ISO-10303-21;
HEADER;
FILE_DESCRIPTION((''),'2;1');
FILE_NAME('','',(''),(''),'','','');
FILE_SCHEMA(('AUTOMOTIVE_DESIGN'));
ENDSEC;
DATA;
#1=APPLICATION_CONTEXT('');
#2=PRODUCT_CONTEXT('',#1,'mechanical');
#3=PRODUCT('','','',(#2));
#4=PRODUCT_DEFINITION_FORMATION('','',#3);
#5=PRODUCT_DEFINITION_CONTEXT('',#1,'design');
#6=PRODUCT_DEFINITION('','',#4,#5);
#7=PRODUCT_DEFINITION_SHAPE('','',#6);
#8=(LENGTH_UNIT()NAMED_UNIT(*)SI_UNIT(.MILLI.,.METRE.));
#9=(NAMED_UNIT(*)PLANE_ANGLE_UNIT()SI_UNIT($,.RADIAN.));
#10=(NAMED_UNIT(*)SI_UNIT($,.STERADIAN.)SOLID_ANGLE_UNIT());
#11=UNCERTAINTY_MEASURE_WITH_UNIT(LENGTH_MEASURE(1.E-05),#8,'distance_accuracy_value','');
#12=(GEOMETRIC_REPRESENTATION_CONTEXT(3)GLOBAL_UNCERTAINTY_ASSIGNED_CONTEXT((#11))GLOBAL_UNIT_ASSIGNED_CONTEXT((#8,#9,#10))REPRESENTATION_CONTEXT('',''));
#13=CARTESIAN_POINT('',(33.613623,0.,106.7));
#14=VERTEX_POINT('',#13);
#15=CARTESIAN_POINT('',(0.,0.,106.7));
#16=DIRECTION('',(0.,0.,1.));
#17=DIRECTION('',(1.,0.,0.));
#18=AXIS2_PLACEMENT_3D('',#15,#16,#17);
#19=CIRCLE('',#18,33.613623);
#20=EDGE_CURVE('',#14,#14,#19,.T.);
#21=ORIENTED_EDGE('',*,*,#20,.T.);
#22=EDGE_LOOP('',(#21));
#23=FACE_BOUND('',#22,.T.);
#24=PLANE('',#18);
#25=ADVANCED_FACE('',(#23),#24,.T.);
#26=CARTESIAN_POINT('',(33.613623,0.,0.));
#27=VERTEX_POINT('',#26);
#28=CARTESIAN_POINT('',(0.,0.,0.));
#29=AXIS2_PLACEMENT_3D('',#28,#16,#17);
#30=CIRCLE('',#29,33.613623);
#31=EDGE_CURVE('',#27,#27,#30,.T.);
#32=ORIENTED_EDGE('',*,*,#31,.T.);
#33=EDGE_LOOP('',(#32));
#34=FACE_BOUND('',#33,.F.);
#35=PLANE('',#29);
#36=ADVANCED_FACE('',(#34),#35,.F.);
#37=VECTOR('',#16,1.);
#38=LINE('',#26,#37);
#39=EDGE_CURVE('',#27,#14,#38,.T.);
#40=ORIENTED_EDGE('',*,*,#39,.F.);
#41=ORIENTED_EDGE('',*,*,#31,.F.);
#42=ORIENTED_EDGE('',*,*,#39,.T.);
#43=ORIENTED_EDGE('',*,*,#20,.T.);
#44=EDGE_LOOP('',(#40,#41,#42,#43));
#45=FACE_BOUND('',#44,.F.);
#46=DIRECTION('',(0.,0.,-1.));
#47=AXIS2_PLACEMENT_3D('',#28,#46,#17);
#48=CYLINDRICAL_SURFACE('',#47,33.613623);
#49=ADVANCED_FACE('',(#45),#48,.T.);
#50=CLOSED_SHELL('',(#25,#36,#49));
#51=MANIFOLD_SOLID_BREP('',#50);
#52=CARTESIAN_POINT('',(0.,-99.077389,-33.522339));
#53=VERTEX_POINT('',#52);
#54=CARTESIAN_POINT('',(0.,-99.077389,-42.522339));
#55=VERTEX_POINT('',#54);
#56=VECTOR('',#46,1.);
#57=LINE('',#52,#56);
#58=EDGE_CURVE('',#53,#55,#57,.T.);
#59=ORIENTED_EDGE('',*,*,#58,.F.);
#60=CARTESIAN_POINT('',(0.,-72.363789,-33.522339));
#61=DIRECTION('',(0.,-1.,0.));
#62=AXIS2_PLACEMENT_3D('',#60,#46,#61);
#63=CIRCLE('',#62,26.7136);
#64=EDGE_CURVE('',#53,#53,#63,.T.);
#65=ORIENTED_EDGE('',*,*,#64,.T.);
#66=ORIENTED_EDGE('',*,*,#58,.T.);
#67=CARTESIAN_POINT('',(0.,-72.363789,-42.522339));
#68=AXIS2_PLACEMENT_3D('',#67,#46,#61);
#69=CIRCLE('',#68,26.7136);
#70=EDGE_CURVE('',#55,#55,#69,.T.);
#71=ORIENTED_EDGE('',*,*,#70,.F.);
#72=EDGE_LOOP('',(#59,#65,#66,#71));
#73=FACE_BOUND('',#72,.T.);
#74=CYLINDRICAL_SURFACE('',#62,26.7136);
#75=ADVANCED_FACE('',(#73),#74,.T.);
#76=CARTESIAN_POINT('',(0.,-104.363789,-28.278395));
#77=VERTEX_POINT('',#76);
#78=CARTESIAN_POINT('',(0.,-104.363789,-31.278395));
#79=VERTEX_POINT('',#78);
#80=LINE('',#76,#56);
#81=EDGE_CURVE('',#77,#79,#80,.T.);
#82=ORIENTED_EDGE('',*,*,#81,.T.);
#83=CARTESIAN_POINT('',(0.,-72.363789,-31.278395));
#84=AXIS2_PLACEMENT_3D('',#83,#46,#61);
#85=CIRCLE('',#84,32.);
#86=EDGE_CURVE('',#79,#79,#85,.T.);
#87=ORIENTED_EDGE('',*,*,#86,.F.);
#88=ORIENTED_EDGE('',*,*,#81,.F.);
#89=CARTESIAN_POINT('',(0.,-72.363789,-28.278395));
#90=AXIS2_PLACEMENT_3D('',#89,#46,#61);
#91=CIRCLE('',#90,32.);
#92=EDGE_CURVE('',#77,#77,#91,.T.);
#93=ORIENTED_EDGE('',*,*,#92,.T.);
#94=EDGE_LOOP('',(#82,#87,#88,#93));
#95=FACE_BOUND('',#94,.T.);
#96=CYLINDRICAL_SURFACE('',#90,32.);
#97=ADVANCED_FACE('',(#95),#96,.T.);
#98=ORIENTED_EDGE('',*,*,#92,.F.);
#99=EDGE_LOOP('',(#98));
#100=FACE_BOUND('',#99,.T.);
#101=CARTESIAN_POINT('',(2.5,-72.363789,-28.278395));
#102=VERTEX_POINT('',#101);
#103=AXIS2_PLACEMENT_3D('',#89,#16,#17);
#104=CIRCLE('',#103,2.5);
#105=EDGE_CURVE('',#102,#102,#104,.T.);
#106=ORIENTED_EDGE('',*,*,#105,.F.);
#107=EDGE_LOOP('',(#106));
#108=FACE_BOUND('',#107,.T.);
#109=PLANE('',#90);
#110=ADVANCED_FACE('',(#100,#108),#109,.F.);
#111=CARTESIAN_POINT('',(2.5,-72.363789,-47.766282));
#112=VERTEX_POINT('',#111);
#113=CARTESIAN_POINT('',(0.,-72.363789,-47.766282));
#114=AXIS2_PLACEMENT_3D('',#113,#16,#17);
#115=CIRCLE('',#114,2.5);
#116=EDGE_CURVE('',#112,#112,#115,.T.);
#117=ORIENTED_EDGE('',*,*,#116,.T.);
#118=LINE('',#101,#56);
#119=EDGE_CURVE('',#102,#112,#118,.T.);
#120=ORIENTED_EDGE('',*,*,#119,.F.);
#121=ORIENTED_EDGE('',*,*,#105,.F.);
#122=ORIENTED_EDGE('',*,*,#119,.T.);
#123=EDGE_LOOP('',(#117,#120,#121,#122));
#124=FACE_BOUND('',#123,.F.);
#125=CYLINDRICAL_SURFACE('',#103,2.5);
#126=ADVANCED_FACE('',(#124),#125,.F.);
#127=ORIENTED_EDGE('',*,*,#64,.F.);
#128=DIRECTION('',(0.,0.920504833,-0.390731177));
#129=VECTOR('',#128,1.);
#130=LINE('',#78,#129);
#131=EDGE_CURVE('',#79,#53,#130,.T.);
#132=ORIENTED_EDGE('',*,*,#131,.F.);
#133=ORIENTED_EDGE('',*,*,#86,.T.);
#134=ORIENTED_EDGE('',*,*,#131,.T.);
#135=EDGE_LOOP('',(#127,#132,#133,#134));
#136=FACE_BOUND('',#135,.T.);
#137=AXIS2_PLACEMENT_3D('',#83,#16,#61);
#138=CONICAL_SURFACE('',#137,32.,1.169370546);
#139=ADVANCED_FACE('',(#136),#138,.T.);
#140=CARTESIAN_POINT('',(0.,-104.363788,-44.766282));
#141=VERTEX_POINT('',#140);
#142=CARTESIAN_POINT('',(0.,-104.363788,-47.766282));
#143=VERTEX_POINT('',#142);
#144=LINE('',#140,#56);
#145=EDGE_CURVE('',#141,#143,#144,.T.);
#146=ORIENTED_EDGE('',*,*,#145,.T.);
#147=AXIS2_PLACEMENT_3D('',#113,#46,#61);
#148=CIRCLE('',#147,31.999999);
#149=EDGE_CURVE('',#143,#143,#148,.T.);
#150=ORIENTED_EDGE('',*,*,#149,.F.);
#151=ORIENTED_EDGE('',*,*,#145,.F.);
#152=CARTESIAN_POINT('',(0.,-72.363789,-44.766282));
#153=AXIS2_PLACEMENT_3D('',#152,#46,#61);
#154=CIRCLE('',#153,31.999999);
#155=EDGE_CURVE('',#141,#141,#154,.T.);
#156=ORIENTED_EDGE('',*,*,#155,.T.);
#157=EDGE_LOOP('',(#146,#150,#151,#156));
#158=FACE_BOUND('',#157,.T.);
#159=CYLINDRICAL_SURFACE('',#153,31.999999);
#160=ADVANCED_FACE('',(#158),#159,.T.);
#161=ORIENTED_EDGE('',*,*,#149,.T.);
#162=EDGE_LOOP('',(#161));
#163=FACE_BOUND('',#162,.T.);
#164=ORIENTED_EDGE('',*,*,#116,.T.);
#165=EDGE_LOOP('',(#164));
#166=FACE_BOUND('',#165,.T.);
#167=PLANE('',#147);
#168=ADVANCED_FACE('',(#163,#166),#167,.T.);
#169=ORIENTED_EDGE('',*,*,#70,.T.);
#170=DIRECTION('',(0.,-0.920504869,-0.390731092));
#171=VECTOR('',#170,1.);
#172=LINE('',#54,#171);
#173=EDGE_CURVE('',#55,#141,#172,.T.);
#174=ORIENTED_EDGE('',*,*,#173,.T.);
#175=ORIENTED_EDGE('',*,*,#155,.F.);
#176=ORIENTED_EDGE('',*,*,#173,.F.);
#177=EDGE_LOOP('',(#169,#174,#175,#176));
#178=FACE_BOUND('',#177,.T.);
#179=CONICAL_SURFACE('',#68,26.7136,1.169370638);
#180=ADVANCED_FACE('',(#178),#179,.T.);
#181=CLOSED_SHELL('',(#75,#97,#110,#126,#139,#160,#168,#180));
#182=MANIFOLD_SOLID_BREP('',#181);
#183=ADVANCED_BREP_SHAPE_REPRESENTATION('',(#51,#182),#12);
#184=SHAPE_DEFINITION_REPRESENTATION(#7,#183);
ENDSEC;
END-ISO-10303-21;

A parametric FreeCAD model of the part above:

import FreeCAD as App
import Part
import Sketcher
Q = App.Units.Quantity

doc = App.newDocument("Part")
body = doc.addObject("PartDesign::Body", "Body")

sketch1 = body.newObject("Sketcher::SketchObject", "Sketch")
sketch1.AttachmentSupport = (doc.getObject("XY_Plane"), [""])
sketch1.MapMode = "FlatFace"
sketch1.addGeometry(Part.Circle(App.Vector(0, 0, 0), App.Vector(0, 0, 1), 33.613623), False)
sketch1.addConstraint([
    Sketcher.Constraint("Coincident", 0, 3, -1, 1),
    Sketcher.Constraint("Diameter", 0, Q("67.227246 mm")),
])
pad1 = body.newObject("PartDesign::Pad", "Pad")
pad1.Profile = sketch1
pad1.Length = 106.7
body2 = doc.addObject("PartDesign::Body", "Body001")

sketch2 = body2.newObject("Sketcher::SketchObject", "Sketch001")
sketch2.AttachmentSupport = (doc.getObject("YZ_Plane001"), [""])
sketch2.MapMode = "FlatFace"
sketch2.addGeometry([
    Part.LineSegment(App.Vector(-72.363789, -28.278395, 0), App.Vector(-104.363789, -28.278395, 0)),
    Part.LineSegment(App.Vector(-104.363789, -28.278395, 0), App.Vector(-104.363789, -31.278395, 0)),
    Part.LineSegment(App.Vector(-104.363789, -31.278395, 0), App.Vector(-99.077389, -33.522339, 0)),
    Part.LineSegment(App.Vector(-99.077389, -33.522339, 0), App.Vector(-99.077389, -42.522339, 0)),
    Part.LineSegment(App.Vector(-99.077389, -42.522339, 0), App.Vector(-104.363788, -44.766282, 0)),
    Part.LineSegment(App.Vector(-104.363788, -44.766282, 0), App.Vector(-104.363788, -47.766282, 0)),
    Part.LineSegment(App.Vector(-104.363788, -47.766282, 0), App.Vector(-72.363789, -47.766282, 0)),
    Part.LineSegment(App.Vector(-72.363789, -47.766282, 0), App.Vector(-72.363789, -28.278395, 0)),
], False)
sketch2.addGeometry(Part.LineSegment(App.Vector(-72.363789, -28.278395, 0), App.Vector(-72.363789, -47.766282, 0)), True)
sketch2.addConstraint([
    Sketcher.Constraint("Coincident", 0, 2, 1, 1),
    Sketcher.Constraint("Coincident", 1, 2, 2, 1),
    Sketcher.Constraint("Coincident", 2, 2, 3, 1),
    Sketcher.Constraint("Coincident", 3, 2, 4, 1),
    Sketcher.Constraint("Coincident", 4, 2, 5, 1),
    Sketcher.Constraint("Coincident", 5, 2, 6, 1),
    Sketcher.Constraint("Coincident", 6, 2, 7, 1),
    Sketcher.Constraint("Coincident", 7, 2, 0, 1),
    Sketcher.Constraint("Horizontal", 0),
    Sketcher.Constraint("Vertical", 1),
    Sketcher.Constraint("Vertical", 3),
    Sketcher.Constraint("Vertical", 5),
    Sketcher.Constraint("Horizontal", 6),
    Sketcher.Constraint("Vertical", 7),
    Sketcher.Constraint("Vertical", 8),
    Sketcher.Constraint("Coincident", 8, 1, 7, 2),
    Sketcher.Constraint("Horizontal", 5, 2, 8, 2),
    Sketcher.Constraint("Vertical", 1, 2, 4, 2),
    Sketcher.Constraint("Equal", 1, 5),
    Sketcher.Constraint("Equal", 2, 4),
    Sketcher.Constraint("DistanceX", 0, 2, 0, 1, Q("32 mm")),
    Sketcher.Constraint("DistanceY", 1, 2, 1, 1, Q("3 mm")),
    Sketcher.Constraint("DistanceY", 3, 2, 3, 1, Q("9 mm")),
    Sketcher.Constraint("Angle", 2, Q("-23.000003 deg")),
    Sketcher.Constraint("DistanceX", 1, 2, 2, 2, Q("5.2864 mm")),
    Sketcher.Constraint("DistanceX", 0, 2, -1, 1, Q("104.363789 mm")),
    Sketcher.Constraint("DistanceY", 2, 2, -1, 1, Q("33.522339 mm")),
])
revolution = body2.newObject("PartDesign::Revolution", "Revolution")
revolution.Profile = sketch2
revolution.ReferenceAxis = (sketch2, ["Axis0"])
revolution.Angle = 360

sketch3 = body2.newObject("Sketcher::SketchObject", "Sketch002")
sketch3.AttachmentSupport = (doc.getObject("XY_Plane001"), [""])
sketch3.MapMode = "FlatFace"
sketch3.AttachmentOffset = App.Placement(App.Vector(0, 0, -28.278395), App.Rotation())
sketch3.addGeometry(Part.Circle(App.Vector(0, -72.363789, 0), App.Vector(0, 0, 1), 2.5), False)
sketch3.addConstraint([
    Sketcher.Constraint("PointOnObject", 0, 3, -2),
    Sketcher.Constraint("Diameter", 0, Q("5 mm")),
    Sketcher.Constraint("DistanceY", 0, 3, -1, 1, Q("72.363789 mm")),
])
pocket1 = body2.newObject("PartDesign::Pocket", "Pocket")
pocket1.Profile = sketch3
pocket1.Length = 27.2

doc.recompute()
